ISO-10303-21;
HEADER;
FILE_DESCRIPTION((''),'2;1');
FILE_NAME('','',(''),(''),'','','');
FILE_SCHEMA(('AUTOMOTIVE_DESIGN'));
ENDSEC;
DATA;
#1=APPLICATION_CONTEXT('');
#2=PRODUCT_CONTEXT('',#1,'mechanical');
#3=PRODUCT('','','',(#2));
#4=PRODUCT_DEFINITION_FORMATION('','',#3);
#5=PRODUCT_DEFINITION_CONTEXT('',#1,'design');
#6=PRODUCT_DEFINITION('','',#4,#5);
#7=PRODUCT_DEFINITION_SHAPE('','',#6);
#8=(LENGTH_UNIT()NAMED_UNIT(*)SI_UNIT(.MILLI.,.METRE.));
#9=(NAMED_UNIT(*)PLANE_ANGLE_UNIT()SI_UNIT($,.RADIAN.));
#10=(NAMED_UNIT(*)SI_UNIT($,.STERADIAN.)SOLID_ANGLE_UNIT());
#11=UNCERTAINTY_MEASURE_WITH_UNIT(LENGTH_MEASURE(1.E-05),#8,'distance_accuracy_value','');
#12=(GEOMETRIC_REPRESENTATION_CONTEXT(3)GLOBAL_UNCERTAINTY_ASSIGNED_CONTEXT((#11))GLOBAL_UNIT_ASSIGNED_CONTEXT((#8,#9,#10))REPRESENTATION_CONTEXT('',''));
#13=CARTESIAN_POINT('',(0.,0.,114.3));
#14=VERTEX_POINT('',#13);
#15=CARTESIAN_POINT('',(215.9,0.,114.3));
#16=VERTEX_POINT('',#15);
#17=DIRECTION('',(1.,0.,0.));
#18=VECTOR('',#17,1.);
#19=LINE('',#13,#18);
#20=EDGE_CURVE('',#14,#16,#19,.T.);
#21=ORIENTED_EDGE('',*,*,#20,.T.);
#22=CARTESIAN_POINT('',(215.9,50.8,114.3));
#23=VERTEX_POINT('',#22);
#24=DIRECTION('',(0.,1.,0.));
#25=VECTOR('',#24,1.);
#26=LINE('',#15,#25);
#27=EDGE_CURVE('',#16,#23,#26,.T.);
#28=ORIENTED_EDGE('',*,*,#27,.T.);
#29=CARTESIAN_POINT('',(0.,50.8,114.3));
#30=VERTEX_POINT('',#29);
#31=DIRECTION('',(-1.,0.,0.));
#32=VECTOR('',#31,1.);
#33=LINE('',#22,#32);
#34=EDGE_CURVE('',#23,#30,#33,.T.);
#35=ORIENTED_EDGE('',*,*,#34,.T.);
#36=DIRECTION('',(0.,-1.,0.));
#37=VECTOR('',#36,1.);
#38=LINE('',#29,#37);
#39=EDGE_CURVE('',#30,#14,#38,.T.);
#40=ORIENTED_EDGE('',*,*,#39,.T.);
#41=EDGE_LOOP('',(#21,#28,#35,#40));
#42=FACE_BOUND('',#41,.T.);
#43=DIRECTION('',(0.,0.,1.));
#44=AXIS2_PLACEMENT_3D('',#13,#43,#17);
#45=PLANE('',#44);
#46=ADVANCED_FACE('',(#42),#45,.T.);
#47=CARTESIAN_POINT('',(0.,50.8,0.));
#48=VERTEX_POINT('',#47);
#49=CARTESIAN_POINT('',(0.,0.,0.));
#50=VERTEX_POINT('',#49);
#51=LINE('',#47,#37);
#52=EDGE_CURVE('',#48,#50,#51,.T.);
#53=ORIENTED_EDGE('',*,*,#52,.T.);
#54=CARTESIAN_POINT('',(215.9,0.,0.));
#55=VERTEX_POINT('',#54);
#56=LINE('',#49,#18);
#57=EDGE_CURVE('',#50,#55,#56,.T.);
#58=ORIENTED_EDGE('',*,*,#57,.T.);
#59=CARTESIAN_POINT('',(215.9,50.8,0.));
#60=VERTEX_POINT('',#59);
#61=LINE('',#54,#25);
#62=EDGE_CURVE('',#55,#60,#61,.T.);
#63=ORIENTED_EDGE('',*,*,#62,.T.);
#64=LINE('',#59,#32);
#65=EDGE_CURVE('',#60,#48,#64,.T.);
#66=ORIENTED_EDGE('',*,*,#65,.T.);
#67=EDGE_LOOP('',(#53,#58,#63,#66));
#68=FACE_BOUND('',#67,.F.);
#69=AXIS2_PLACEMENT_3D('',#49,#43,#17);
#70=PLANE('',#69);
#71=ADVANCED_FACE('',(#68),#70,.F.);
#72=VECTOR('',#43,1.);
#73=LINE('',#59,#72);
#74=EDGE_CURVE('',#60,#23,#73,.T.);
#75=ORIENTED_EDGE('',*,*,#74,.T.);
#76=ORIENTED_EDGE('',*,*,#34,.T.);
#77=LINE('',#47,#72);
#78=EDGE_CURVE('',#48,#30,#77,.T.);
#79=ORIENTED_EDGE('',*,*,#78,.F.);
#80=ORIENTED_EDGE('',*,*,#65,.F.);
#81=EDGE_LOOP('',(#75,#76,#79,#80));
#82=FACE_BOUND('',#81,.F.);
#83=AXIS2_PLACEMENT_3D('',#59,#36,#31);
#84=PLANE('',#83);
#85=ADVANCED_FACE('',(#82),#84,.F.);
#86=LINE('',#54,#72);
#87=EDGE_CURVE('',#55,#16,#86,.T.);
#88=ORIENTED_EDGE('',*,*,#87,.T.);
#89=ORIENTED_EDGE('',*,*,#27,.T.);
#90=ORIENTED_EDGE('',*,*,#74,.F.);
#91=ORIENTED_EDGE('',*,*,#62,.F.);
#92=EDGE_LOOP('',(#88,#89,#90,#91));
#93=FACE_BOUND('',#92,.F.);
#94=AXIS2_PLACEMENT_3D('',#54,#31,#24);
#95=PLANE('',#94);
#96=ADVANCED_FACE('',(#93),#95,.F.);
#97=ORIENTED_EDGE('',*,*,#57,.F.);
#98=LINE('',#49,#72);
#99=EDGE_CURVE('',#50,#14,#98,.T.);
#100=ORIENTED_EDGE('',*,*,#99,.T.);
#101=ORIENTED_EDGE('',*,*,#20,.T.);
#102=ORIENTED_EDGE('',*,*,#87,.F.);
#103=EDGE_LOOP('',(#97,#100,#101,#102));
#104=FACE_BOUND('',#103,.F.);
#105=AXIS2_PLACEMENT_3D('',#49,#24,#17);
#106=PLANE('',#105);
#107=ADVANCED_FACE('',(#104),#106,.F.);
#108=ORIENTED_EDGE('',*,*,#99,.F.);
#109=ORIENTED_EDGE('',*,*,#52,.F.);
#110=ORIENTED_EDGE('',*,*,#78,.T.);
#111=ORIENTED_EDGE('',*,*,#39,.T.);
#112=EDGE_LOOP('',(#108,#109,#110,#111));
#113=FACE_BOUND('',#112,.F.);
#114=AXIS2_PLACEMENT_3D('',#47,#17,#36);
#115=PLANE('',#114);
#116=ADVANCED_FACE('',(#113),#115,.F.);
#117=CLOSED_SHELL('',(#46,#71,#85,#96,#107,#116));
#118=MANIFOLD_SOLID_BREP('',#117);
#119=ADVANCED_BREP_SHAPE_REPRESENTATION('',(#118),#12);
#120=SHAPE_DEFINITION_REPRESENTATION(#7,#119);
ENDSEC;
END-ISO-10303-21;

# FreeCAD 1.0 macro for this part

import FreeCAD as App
import Part
import Sketcher
from FreeCAD import Vector
Q = App.Units.Quantity

doc = App.newDocument("Part")
params = doc.addObject("Spreadsheet::Sheet", "Params")
for row, (alias, value) in enumerate([
    ("sketch1_height", "2 in"),
    ("sketch1_width", "8.5 in"),
    ("pad1_length", "4.5 in"),
], start=1):
    params.set(f"A{row}", alias)
    params.set(f"B{row}", "=" + value)
    params.setAlias(f"B{row}", alias)

body = doc.addObject("PartDesign::Body", "Body")

# Sketch on XY plane
sketch1 = doc.addObject("Sketcher::SketchObject", "Sketch")
body.addObject(sketch1)
sketch1.AttachmentSupport = (doc.XY_Plane, [""])
sketch1.MapMode = "FlatFace"
sketch1.addGeometry([
    Part.LineSegment(Vector(0, 51, 0), Vector(0, 0, 0)),
    Part.LineSegment(Vector(0, 0, 0), Vector(216, 0, 0)),
    Part.LineSegment(Vector(216, 0, 0), Vector(216, 51, 0)),
    Part.LineSegment(Vector(216, 51, 0), Vector(0, 51, 0)),
], False)
sketch1.addConstraint([
    Sketcher.Constraint("Coincident", 0, 2, 1, 1),
    Sketcher.Constraint("Coincident", 1, 2, 2, 1),
    Sketcher.Constraint("Coincident", 2, 2, 3, 1),
    Sketcher.Constraint("Coincident", 3, 2, 0, 1),
    Sketcher.Constraint("Vertical", 0),
    Sketcher.Constraint("Horizontal", 1),
    Sketcher.Constraint("Vertical", 2),
    Sketcher.Constraint("Horizontal", 3),
    Sketcher.Constraint("Coincident", 0, 2, -1, 1),
    Sketcher.Constraint("DistanceY", 0, 2, 0, 1, Q("2 in")),
    Sketcher.Constraint("DistanceX", 1, 1, 1, 2, Q("8.5 in")),
])
sketch1.setExpression("Constraints[9]", "Params.sketch1_height")
sketch1.setExpression("Constraints[10]", "Params.sketch1_width")
pad1 = doc.addObject("PartDesign::Pad", "Pad")
body.addObject(pad1)
pad1.Profile = sketch1
pad1.setExpression("Length", "Params.pad1_length")

doc.recompute()
